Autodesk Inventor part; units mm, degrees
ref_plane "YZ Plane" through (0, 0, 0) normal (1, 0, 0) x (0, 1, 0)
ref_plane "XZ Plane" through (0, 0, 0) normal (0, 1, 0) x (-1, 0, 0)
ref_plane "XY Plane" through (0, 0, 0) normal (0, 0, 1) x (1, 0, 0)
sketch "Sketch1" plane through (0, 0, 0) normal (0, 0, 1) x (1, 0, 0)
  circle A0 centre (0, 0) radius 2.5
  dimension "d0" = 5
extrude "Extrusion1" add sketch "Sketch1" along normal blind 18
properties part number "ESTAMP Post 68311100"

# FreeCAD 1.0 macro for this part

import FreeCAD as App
import Part
import Sketcher

doc = App.newDocument("Part")
params = doc.addObject("Spreadsheet::Sheet", "Params")
for row, (alias, value) in enumerate([
    ("sketch1_diameter", "5 mm"),
    ("pad1_length", "18 mm"),
], start=1):
    params.set(f"A{row}", alias)
    params.set(f"B{row}", "=" + value)
    params.setAlias(f"B{row}", alias)

body = doc.addObject("PartDesign::Body", "Body")

# Sketch on XY plane
sketch1 = doc.addObject("Sketcher::SketchObject", "Sketch")
body.addObject(sketch1)
sketch1.AttachmentSupport = (doc.XY_Plane, [""])
sketch1.MapMode = "FlatFace"
sketch1.addGeometry(Part.Circle(App.Vector(0, 0, 0), App.Vector(0, 0, 1), 2.5), False)
sketch1.addConstraint(Sketcher.Constraint("Coincident", 0, 3, -1, 1))
sketch1.addConstraint(Sketcher.Constraint("Diameter", 0, 5.0))
sketch1.setExpression("Constraints[1]", "Params.sketch1_diameter")
pad1 = doc.addObject("PartDesign::Pad", "Pad")
body.addObject(pad1)
pad1.Profile = sketch1
pad1.setExpression("Length", "Params.pad1_length")

doc.recompute()
